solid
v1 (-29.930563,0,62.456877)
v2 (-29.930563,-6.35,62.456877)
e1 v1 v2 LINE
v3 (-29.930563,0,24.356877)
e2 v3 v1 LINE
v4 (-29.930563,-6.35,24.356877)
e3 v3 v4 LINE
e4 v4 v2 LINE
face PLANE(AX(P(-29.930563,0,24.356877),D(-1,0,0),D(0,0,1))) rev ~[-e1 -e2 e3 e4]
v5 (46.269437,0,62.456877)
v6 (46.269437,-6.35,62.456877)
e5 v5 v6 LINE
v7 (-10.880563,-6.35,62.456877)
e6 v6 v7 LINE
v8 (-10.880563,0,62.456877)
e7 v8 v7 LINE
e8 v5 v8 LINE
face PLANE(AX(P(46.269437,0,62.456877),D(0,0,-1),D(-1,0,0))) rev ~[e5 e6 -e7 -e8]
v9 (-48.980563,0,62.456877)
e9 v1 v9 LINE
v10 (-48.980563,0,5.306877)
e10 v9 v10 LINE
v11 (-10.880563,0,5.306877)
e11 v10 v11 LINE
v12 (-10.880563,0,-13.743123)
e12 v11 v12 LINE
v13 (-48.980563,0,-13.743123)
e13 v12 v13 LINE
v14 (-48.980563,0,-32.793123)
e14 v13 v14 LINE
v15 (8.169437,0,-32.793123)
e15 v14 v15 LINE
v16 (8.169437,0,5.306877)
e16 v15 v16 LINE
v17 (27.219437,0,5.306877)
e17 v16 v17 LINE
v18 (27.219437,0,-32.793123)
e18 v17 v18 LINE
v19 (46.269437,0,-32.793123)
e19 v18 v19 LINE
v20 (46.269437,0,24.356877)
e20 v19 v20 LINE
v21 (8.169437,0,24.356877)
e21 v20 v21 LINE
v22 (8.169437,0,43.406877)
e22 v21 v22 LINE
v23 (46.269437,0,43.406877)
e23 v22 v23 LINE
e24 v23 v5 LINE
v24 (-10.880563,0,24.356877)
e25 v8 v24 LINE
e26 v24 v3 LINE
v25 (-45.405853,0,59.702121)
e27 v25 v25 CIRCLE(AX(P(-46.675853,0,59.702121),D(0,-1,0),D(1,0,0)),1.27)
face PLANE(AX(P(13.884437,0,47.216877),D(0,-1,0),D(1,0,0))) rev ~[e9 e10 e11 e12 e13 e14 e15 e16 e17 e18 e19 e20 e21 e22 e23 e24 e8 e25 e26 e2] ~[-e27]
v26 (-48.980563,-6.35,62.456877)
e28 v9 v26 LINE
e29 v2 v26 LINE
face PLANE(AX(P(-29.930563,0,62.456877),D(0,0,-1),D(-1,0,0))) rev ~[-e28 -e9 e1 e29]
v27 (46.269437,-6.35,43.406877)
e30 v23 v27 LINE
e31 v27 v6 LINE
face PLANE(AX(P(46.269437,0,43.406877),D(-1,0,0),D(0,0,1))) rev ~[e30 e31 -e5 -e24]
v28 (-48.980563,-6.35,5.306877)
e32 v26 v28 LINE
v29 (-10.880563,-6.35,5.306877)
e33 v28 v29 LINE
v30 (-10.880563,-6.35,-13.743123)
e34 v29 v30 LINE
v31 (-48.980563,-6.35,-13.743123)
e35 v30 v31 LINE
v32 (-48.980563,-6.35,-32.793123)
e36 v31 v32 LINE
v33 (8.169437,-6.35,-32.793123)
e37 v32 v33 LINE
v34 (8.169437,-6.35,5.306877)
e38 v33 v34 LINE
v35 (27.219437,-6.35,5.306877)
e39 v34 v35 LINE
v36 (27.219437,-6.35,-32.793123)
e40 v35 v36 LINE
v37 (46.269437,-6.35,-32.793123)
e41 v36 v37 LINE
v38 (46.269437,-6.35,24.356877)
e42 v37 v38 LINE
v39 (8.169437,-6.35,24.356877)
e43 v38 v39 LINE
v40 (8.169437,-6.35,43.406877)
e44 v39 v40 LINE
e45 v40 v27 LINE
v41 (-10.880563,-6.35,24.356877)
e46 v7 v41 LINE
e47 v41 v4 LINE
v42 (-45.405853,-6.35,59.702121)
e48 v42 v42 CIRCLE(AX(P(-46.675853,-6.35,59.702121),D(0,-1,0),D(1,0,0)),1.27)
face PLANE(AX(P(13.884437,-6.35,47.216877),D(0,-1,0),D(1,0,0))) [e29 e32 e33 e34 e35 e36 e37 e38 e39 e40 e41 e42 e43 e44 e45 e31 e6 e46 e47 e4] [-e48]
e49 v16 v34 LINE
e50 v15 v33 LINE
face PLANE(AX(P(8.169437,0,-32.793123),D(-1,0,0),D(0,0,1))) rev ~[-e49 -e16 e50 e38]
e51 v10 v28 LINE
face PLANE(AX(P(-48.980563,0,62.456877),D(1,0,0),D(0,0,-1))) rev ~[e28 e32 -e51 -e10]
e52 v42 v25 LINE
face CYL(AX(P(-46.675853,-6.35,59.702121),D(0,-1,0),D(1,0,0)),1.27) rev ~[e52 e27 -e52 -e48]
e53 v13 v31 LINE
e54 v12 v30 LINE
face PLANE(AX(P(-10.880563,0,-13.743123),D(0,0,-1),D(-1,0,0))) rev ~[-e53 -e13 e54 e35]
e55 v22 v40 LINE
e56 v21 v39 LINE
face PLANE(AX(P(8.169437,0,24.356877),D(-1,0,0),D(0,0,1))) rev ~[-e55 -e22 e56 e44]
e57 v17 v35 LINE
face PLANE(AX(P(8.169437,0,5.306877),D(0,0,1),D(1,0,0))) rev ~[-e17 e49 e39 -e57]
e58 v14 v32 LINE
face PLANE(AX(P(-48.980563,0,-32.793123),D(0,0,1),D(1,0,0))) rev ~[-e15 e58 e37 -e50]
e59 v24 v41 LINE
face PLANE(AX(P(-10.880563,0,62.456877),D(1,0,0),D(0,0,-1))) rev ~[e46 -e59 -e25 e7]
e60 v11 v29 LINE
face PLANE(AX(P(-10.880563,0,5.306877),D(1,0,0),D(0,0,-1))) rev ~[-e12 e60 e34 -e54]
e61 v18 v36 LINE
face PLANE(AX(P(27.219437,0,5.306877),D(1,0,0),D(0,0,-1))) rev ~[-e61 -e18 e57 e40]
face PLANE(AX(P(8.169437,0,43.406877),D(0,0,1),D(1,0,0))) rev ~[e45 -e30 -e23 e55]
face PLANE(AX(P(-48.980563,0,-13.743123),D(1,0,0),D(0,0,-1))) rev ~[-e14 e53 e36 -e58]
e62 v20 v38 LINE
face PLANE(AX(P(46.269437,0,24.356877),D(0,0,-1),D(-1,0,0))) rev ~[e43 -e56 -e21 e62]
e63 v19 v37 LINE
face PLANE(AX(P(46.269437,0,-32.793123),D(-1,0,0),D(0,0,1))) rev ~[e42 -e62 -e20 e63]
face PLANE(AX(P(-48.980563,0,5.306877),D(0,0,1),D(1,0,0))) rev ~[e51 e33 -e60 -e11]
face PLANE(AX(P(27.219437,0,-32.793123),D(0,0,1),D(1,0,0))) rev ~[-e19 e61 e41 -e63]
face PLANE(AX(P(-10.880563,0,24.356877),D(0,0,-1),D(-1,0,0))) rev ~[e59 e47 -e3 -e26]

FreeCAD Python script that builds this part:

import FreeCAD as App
import Part
import Sketcher

V = App.Vector
Q = App.Units.Quantity

doc = App.newDocument("Part")
body = doc.addObject("PartDesign::Body", "Body")

sketch1 = body.newObject("Sketcher::SketchObject", "Sketch")
sketch1.AttachmentSupport = (doc.getObject("XZ_Plane"), [""])
sketch1.MapMode = "FlatFace"
sketch1.addGeometry(Part.LineSegment(V(-10.880563, 62.456877, 0), V(-10.880563, 24.356877, 0)), False)
sketch1.addGeometry(Part.LineSegment(V(-10.880563, 24.356877, 0), V(-29.930563, 24.356877, 0)), False)
sketch1.addGeometry(Part.LineSegment(V(-29.930563, 24.356877, 0), V(-29.930563, 62.456877, 0)), False)
sketch1.addGeometry(Part.LineSegment(V(-29.930563, 62.456877, 0), V(-48.980563, 62.456877, 0)), False)
sketch1.addGeometry(Part.LineSegment(V(-48.980563, 62.456877, 0), V(-48.980563, 5.306877, 0)), False)
sketch1.addGeometry(Part.LineSegment(V(-48.980563, 5.306877, 0), V(-10.880563, 5.306877, 0)), False)
sketch1.addGeometry(Part.LineSegment(V(-10.880563, 5.306877, 0), V(-10.880563, -13.743123, 0)), False)
sketch1.addGeometry(Part.LineSegment(V(-10.880563, -13.743123, 0), V(-48.980563, -13.743123, 0)), False)
sketch1.addGeometry(Part.LineSegment(V(-48.980563, -13.743123, 0), V(-48.980563, -32.793123, 0)), False)
sketch1.addGeometry(Part.LineSegment(V(-48.980563, -32.793123, 0), V(8.169437, -32.793123, 0)), False)
sketch1.addGeometry(Part.LineSegment(V(8.169437, -32.793123, 0), V(8.169437, 5.306877, 0)), False)
sketch1.addGeometry(Part.LineSegment(V(8.169437, 5.306877, 0), V(27.219437, 5.306877, 0)), False)
sketch1.addGeometry(Part.LineSegment(V(27.219437, 5.306877, 0), V(27.219437, -32.793123, 0)), False)
sketch1.addGeometry(Part.LineSegment(V(27.219437, -32.793123, 0), V(46.269437, -32.793123, 0)), False)
sketch1.addGeometry(Part.LineSegment(V(46.269437, -32.793123, 0), V(46.269437, 24.356877, 0)), False)
sketch1.addGeometry(Part.LineSegment(V(46.269437, 24.356877, 0), V(8.169437, 24.356877, 0)), False)
sketch1.addGeometry(Part.LineSegment(V(8.169437, 24.356877, 0), V(8.169437, 43.406877, 0)), False)
sketch1.addGeometry(Part.LineSegment(V(8.169437, 43.406877, 0), V(46.269437, 43.406877, 0)), False)
sketch1.addGeometry(Part.LineSegment(V(46.269437, 43.406877, 0), V(46.269437, 62.456877, 0)), False)
sketch1.addGeometry(Part.LineSegment(V(46.269437, 62.456877, 0), V(-10.880563, 62.456877, 0)), False)
sketch1.addConstraint(Sketcher.Constraint("Coincident", 0, 2, 1, 1))
sketch1.addConstraint(Sketcher.Constraint("Coincident", 1, 2, 2, 1))
sketch1.addConstraint(Sketcher.Constraint("Coincident", 2, 2, 3, 1))
sketch1.addConstraint(Sketcher.Constraint("Coincident", 3, 2, 4, 1))
sketch1.addConstraint(Sketcher.Constraint("Coincident", 4, 2, 5, 1))
sketch1.addConstraint(Sketcher.Constraint("Coincident", 5, 2, 6, 1))
sketch1.addConstraint(Sketcher.Constraint("Coincident", 6, 2, 7, 1))
sketch1.addConstraint(Sketcher.Constraint("Coincident", 7, 2, 8, 1))
sketch1.addConstraint(Sketcher.Constraint("Coincident", 8, 2, 9, 1))
sketch1.addConstraint(Sketcher.Constraint("Coincident", 9, 2, 10, 1))
sketch1.addConstraint(Sketcher.Constraint("Coincident", 10, 2, 11, 1))
sketch1.addConstraint(Sketcher.Constraint("Coincident", 11, 2, 12, 1))
sketch1.addConstraint(Sketcher.Constraint("Coincident", 12, 2, 13, 1))
sketch1.addConstraint(Sketcher.Constraint("Coincident", 13, 2, 14, 1))
sketch1.addConstraint(Sketcher.Constraint("Coincident", 14, 2, 15, 1))
sketch1.addConstraint(Sketcher.Constraint("Coincident", 15, 2, 16, 1))
sketch1.addConstraint(Sketcher.Constraint("Coincident", 16, 2, 17, 1))
sketch1.addConstraint(Sketcher.Constraint("Coincident", 17, 2, 18, 1))
sketch1.addConstraint(Sketcher.Constraint("Coincident", 18, 2, 19, 1))
sketch1.addConstraint(Sketcher.Constraint("Coincident", 19, 2, 0, 1))
sketch1.addConstraint(Sketcher.Constraint("Vertical", 0))
sketch1.addConstraint(Sketcher.Constraint("Horizontal", 1))
sketch1.addConstraint(Sketcher.Constraint("Vertical", 2))
sketch1.addConstraint(Sketcher.Constraint("Horizontal", 3))
sketch1.addConstraint(Sketcher.Constraint("Vertical", 4))
sketch1.addConstraint(Sketcher.Constraint("Horizontal", 5))
sketch1.addConstraint(Sketcher.Constraint("Vertical", 6))
sketch1.addConstraint(Sketcher.Constraint("Horizontal", 7))
sketch1.addConstraint(Sketcher.Constraint("Vertical", 8))
sketch1.addConstraint(Sketcher.Constraint("Horizontal", 9))
sketch1.addConstraint(Sketcher.Constraint("Vertical", 10))
sketch1.addConstraint(Sketcher.Constraint("Horizontal", 11))
sketch1.addConstraint(Sketcher.Constraint("Vertical", 12))
sketch1.addConstraint(Sketcher.Constraint("Horizontal", 13))
sketch1.addConstraint(Sketcher.Constraint("Vertical", 14))
sketch1.addConstraint(Sketcher.Constraint("Horizontal", 15))
sketch1.addConstraint(Sketcher.Constraint("Vertical", 16))
sketch1.addConstraint(Sketcher.Constraint("Horizontal", 17))
sketch1.addConstraint(Sketcher.Constraint("Vertical", 18))
sketch1.addConstraint(Sketcher.Constraint("Horizontal", 19))
sketch1.addConstraint(Sketcher.Constraint("Horizontal", 5, 2, 10, 2))
sketch1.addConstraint(Sketcher.Constraint("Horizontal", 9, 2, 12, 2))
sketch1.addConstraint(Sketcher.Constraint("Horizontal", 1, 2, 14, 2))
sketch1.addConstraint(Sketcher.Constraint("Horizontal", 3, 2, 18, 2))
sketch1.addConstraint(Sketcher.Constraint("Vertical", 0, 2, 5, 2))
sketch1.addConstraint(Sketcher.Constraint("Vertical", 4, 2, 7, 2))
sketch1.addConstraint(Sketcher.Constraint("Vertical", 10, 2, 15, 2))
sketch1.addConstraint(Sketcher.Constraint("Vertical", 14, 2, 17, 2))
sketch1.addConstraint(Sketcher.Constraint("Equal", 1, 3))
sketch1.addConstraint(Sketcher.Constraint("Equal", 3, 11))
sketch1.addConstraint(Sketcher.Constraint("Equal", 11, 13))
sketch1.addConstraint(Sketcher.Constraint("Equal", 17, 0))
sketch1.addConstraint(Sketcher.Constraint("Equal", 19, 4))
sketch1.addConstraint(Sketcher.Constraint("Equal", 13, 6))
sketch1.addConstraint(Sketcher.Constraint("Equal", 6, 8))
sketch1.addConstraint(Sketcher.Constraint("Equal", 8, 16))
sketch1.addConstraint(Sketcher.Constraint("DistanceX", 5, 1, 5, 2, Q("1.5 in")))
sketch1.addConstraint(Sketcher.Constraint("DistanceY", 6, 2, 2, 2, Q("3 in")))
sketch1.addConstraint(Sketcher.Constraint("DistanceX", 0, 2, -1, 1, 10.880563))
sketch1.addConstraint(Sketcher.Constraint("DistanceY", -1, 1, 0, 2, 24.356877))
pad1 = body.newObject("PartDesign::Pad", "Pad")
pad1.Profile = sketch1
pad1.Length = Q("0.25 in")

sketch2 = body.newObject("Sketcher::SketchObject", "Sketch001")
sketch2.AttachmentSupport = (doc.getObject("XZ_Plane"), [""])
sketch2.MapMode = "FlatFace"
sketch2.AttachmentOffset = App.Placement(V(0, 0, 0.25 * 25.4), App.Rotation())
sketch2.addGeometry(Part.Circle(V(-46.675853, 59.702121, 0), V(0, 0, 1), 1.27), False)
sketch2.addConstraint(Sketcher.Constraint("Diameter", 0, Q("0.1 in")))
sketch2.addConstraint(Sketcher.Constraint("DistanceY", -1, 1, 0, 3, 59.702121))
sketch2.addConstraint(Sketcher.Constraint("DistanceX", 0, 3, -1, 1, 46.675853))
pocket1 = body.newObject("PartDesign::Pocket", "Pocket")
pocket1.Profile = sketch2
pocket1.Length = Q("1 in")

doc.recompute()
